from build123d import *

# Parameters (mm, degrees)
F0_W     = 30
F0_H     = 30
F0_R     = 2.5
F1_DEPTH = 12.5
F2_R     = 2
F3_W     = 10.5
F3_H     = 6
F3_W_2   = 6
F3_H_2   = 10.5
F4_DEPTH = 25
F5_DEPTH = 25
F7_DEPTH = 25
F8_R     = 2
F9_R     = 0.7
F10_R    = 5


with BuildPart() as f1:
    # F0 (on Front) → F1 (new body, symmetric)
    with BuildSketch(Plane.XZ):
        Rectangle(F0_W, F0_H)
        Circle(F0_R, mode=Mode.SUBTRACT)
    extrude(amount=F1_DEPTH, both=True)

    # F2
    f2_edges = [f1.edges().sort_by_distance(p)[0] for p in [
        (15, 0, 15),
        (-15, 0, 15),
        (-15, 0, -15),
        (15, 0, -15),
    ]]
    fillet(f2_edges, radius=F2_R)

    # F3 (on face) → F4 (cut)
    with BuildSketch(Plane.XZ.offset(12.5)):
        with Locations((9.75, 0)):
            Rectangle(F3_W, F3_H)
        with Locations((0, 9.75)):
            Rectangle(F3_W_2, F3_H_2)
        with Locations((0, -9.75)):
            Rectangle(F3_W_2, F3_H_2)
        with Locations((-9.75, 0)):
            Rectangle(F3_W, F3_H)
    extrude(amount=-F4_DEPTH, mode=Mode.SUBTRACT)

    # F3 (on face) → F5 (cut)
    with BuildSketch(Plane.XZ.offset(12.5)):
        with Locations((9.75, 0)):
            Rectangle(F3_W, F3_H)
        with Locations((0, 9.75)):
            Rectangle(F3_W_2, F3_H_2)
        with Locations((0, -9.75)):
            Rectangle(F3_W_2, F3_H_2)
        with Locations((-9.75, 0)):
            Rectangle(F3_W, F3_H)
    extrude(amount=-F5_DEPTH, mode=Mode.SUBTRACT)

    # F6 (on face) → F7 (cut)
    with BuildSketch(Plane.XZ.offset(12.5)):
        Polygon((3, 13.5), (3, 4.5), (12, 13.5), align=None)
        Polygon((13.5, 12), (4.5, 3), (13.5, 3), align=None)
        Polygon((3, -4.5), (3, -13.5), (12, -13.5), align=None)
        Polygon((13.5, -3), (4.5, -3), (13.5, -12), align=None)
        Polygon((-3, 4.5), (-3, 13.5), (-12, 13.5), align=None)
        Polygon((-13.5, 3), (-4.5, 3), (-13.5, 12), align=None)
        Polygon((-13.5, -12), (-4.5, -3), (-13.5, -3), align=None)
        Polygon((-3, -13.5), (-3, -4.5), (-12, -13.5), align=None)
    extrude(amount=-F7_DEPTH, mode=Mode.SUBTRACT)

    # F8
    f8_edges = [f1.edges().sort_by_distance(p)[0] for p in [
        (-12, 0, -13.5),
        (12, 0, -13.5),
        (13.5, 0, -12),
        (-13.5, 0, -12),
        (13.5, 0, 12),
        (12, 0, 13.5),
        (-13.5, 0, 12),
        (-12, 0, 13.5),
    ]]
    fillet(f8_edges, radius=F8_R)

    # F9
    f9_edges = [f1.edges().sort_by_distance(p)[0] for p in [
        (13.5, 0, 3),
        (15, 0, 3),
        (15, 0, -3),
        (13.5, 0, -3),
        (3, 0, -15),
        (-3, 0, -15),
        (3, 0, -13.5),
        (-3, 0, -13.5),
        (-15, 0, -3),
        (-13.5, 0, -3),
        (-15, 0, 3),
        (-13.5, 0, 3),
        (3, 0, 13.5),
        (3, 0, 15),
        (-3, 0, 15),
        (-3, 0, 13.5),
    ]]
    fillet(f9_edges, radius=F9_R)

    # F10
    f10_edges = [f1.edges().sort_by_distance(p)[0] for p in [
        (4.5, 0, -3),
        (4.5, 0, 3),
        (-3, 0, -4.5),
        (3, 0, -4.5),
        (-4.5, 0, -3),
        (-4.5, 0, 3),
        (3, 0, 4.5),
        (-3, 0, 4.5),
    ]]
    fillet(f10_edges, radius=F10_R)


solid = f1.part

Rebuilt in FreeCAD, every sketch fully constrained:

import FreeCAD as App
import Part
import Sketcher
from FreeCAD import Vector


def edges_at(feature, points):
    """Names of the edges that pass closest to the given points."""
    edges = feature.Shape.Edges
    near = lambda p: min(range(len(edges)), key=lambda i: edges[i].distToShape(Part.Vertex(*p))[0])
    return sorted({f"Edge{near(p) + 1}" for p in points})

doc = App.newDocument("Part")
body = doc.addObject("PartDesign::Body", "Body")

sketch1 = body.newObject("Sketcher::SketchObject", "Sketch")
sketch1.AttachmentSupport = (doc.getObject("XZ_Plane"), [""])
sketch1.MapMode = "FlatFace"
sketch1.addGeometry([
    Part.LineSegment(Vector(-15, 15, 0), Vector(-15, -15, 0)),
    Part.LineSegment(Vector(-15, -15, 0), Vector(15, -15, 0)),
    Part.LineSegment(Vector(15, -15, 0), Vector(15, 15, 0)),
    Part.LineSegment(Vector(15, 15, 0), Vector(-15, 15, 0)),
    Part.Circle(Vector(0, 0, 0), Vector(0, 0, 1), 2.5),
], False)
sketch1.addConstraint([
    Sketcher.Constraint("Coincident", 0, 2, 1, 1),
    Sketcher.Constraint("Coincident", 1, 2, 2, 1),
    Sketcher.Constraint("Coincident", 2, 2, 3, 1),
    Sketcher.Constraint("Coincident", 3, 2, 0, 1),
    Sketcher.Constraint("Vertical", 0),
    Sketcher.Constraint("Horizontal", 1),
    Sketcher.Constraint("Vertical", 2),
    Sketcher.Constraint("Horizontal", 3),
    Sketcher.Constraint("Coincident", 4, 3, -1, 1),
    Sketcher.Constraint("Symmetric", 0, 2, 2, 2, -1, 1),
    Sketcher.Constraint("Equal", 3, 0),
    Sketcher.Constraint("Diameter", 4, 5.0),
    Sketcher.Constraint("DistanceX", 1, 1, 1, 2, 30.0),
])
pad1 = body.newObject("PartDesign::Pad", "Pad")
pad1.Profile = sketch1
pad1.Length = 25
pad1.Midplane = True
doc.recompute()

fillet = body.newObject("PartDesign::Fillet", "Fillet")
fillet.Base = (pad1, edges_at(pad1, [
    (15, 0, 15),
    (-15, 0, 15),
    (-15, 0, -15),
    (15, 0, -15),
]))
fillet.Radius = 2

sketch2 = body.newObject("Sketcher::SketchObject", "Sketch001")
sketch2.AttachmentSupport = (doc.getObject("XZ_Plane"), [""])
sketch2.MapMode = "FlatFace"
sketch2.AttachmentOffset = App.Placement(Vector(0, 0, 12.5), App.Rotation())
sketch2.addGeometry([
    Part.LineSegment(Vector(4, 3, 0), Vector(4, -3, 0)),
    Part.LineSegment(Vector(4, -3, 0), Vector(15, -3, 0)),
    Part.LineSegment(Vector(15, -3, 0), Vector(15, 3, 0)),
    Part.LineSegment(Vector(15, 3, 0), Vector(4, 3, 0)),
    Part.LineSegment(Vector(-3, 15, 0), Vector(-3, 4, 0)),
    Part.LineSegment(Vector(-3, 4, 0), Vector(3, 4, 0)),
    Part.LineSegment(Vector(3, 4, 0), Vector(3, 15, 0)),
    Part.LineSegment(Vector(3, 15, 0), Vector(-3, 15, 0)),
    Part.LineSegment(Vector(-3, -4, 0), Vector(-3, -15, 0)),
    Part.LineSegment(Vector(-3, -15, 0), Vector(3, -15, 0)),
    Part.LineSegment(Vector(3, -15, 0), Vector(3, -4, 0)),
    Part.LineSegment(Vector(3, -4, 0), Vector(-3, -4, 0)),
    Part.LineSegment(Vector(-15, 3, 0), Vector(-15, -3, 0)),
    Part.LineSegment(Vector(-15, -3, 0), Vector(-4, -3, 0)),
    Part.LineSegment(Vector(-4, -3, 0), Vector(-4, 3, 0)),
    Part.LineSegment(Vector(-4, 3, 0), Vector(-15, 3, 0)),
], False)
sketch2.addConstraint([
    Sketcher.Constraint("Coincident", 0, 2, 1, 1),
    Sketcher.Constraint("Coincident", 1, 2, 2, 1),
    Sketcher.Constraint("Coincident", 2, 2, 3, 1),
    Sketcher.Constraint("Coincident", 3, 2, 0, 1),
    Sketcher.Constraint("Coincident", 4, 2, 5, 1),
    Sketcher.Constraint("Coincident", 5, 2, 6, 1),
    Sketcher.Constraint("Coincident", 6, 2, 7, 1),
    Sketcher.Constraint("Coincident", 7, 2, 4, 1),
    Sketcher.Constraint("Coincident", 8, 2, 9, 1),
    Sketcher.Constraint("Coincident", 9, 2, 10, 1),
    Sketcher.Constraint("Coincident", 10, 2, 11, 1),
    Sketcher.Constraint("Coincident", 11, 2, 8, 1),
    Sketcher.Constraint("Coincident", 12, 2, 13, 1),
    Sketcher.Constraint("Coincident", 13, 2, 14, 1),
    Sketcher.Constraint("Coincident", 14, 2, 15, 1),
    Sketcher.Constraint("Coincident", 15, 2, 12, 1),
    Sketcher.Constraint("Vertical", 0),
    Sketcher.Constraint("Horizontal", 1),
    Sketcher.Constraint("Vertical", 2),
    Sketcher.Constraint("Horizontal", 3),
    Sketcher.Constraint("Vertical", 4),
    Sketcher.Constraint("Horizontal", 5),
    Sketcher.Constraint("Vertical", 6),
    Sketcher.Constraint("Horizontal", 7),
    Sketcher.Constraint("Vertical", 8),
    Sketcher.Constraint("Horizontal", 9),
    Sketcher.Constraint("Vertical", 10),
    Sketcher.Constraint("Horizontal", 11),
    Sketcher.Constraint("Vertical", 12),
    Sketcher.Constraint("Horizontal", 13),
    Sketcher.Constraint("Vertical", 14),
    Sketcher.Constraint("Horizontal", 15),
    Sketcher.Constraint("Symmetric", 6, 2, 8, 2, -1, 1),
    Sketcher.Constraint("Symmetric", 4, 2, 10, 2, -1, 1),
    Sketcher.Constraint("Symmetric", 2, 2, 12, 2, -1, 1),
    Sketcher.Constraint("Symmetric", 0, 2, 14, 2, -1, 1),
    Sketcher.Constraint("Horizontal", 1, 2, 12, 2),
    Sketcher.Constraint("Vertical", 7, 2, 8, 2),
    Sketcher.Constraint("Equal", 11, 0),
    Sketcher.Constraint("Equal", 15, 4),
    Sketcher.Constraint("DistanceX", 5, 1, 5, 2, 6.0),
    Sketcher.Constraint("DistanceX", 1, 1, 1, 2, 10.5),
    Sketcher.Constraint("DistanceX", -1, 1, 1, 2, 15.0),
    Sketcher.Constraint("DistanceY", -1, 1, 6, 2, 15.0),
])
pocket1 = body.newObject("PartDesign::Pocket", "Pocket")
pocket1.Profile = sketch2
pocket1.Length = 25

sketch3 = body.newObject("Sketcher::SketchObject", "Sketch002")
sketch3.AttachmentSupport = (doc.getObject("XZ_Plane"), [""])
sketch3.MapMode = "FlatFace"
sketch3.AttachmentOffset = App.Placement(Vector(0, 0, 12.5), App.Rotation())
sketch3.addGeometry([
    Part.LineSegment(Vector(4, 3, 0), Vector(4, -3, 0)),
    Part.LineSegment(Vector(4, -3, 0), Vector(15, -3, 0)),
    Part.LineSegment(Vector(15, -3, 0), Vector(15, 3, 0)),
    Part.LineSegment(Vector(15, 3, 0), Vector(4, 3, 0)),
    Part.LineSegment(Vector(-3, 15, 0), Vector(-3, 4, 0)),
    Part.LineSegment(Vector(-3, 4, 0), Vector(3, 4, 0)),
    Part.LineSegment(Vector(3, 4, 0), Vector(3, 15, 0)),
    Part.LineSegment(Vector(3, 15, 0), Vector(-3, 15, 0)),
    Part.LineSegment(Vector(-3, -4, 0), Vector(-3, -15, 0)),
    Part.LineSegment(Vector(-3, -15, 0), Vector(3, -15, 0)),
    Part.LineSegment(Vector(3, -15, 0), Vector(3, -4, 0)),
    Part.LineSegment(Vector(3, -4, 0), Vector(-3, -4, 0)),
    Part.LineSegment(Vector(-15, 3, 0), Vector(-15, -3, 0)),
    Part.LineSegment(Vector(-15, -3, 0), Vector(-4, -3, 0)),
    Part.LineSegment(Vector(-4, -3, 0), Vector(-4, 3, 0)),
    Part.LineSegment(Vector(-4, 3, 0), Vector(-15, 3, 0)),
], False)
sketch3.addConstraint([
    Sketcher.Constraint("Coincident", 0, 2, 1, 1),
    Sketcher.Constraint("Coincident", 1, 2, 2, 1),
    Sketcher.Constraint("Coincident", 2, 2, 3, 1),
    Sketcher.Constraint("Coincident", 3, 2, 0, 1),
    Sketcher.Constraint("Coincident", 4, 2, 5, 1),
    Sketcher.Constraint("Coincident", 5, 2, 6, 1),
    Sketcher.Constraint("Coincident", 6, 2, 7, 1),
    Sketcher.Constraint("Coincident", 7, 2, 4, 1),
    Sketcher.Constraint("Coincident", 8, 2, 9, 1),
    Sketcher.Constraint("Coincident", 9, 2, 10, 1),
    Sketcher.Constraint("Coincident", 10, 2, 11, 1),
    Sketcher.Constraint("Coincident", 11, 2, 8, 1),
    Sketcher.Constraint("Coincident", 12, 2, 13, 1),
    Sketcher.Constraint("Coincident", 13, 2, 14, 1),
    Sketcher.Constraint("Coincident", 14, 2, 15, 1),
    Sketcher.Constraint("Coincident", 15, 2, 12, 1),
    Sketcher.Constraint("Vertical", 0),
    Sketcher.Constraint("Horizontal", 1),
    Sketcher.Constraint("Vertical", 2),
    Sketcher.Constraint("Horizontal", 3),
    Sketcher.Constraint("Vertical", 4),
    Sketcher.Constraint("Horizontal", 5),
    Sketcher.Constraint("Vertical", 6),
    Sketcher.Constraint("Horizontal", 7),
    Sketcher.Constraint("Vertical", 8),
    Sketcher.Constraint("Horizontal", 9),
    Sketcher.Constraint("Vertical", 10),
    Sketcher.Constraint("Horizontal", 11),
    Sketcher.Constraint("Vertical", 12),
    Sketcher.Constraint("Horizontal", 13),
    Sketcher.Constraint("Vertical", 14),
    Sketcher.Constraint("Horizontal", 15),
    Sketcher.Constraint("Symmetric", 6, 2, 8, 2, -1, 1),
    Sketcher.Constraint("Symmetric", 4, 2, 10, 2, -1, 1),
    Sketcher.Constraint("Symmetric", 2, 2, 12, 2, -1, 1),
    Sketcher.Constraint("Symmetric", 0, 2, 14, 2, -1, 1),
    Sketcher.Constraint("Horizontal", 1, 2, 12, 2),
    Sketcher.Constraint("Vertical", 7, 2, 8, 2),
    Sketcher.Constraint("Equal", 11, 0),
    Sketcher.Constraint("Equal", 15, 4),
    Sketcher.Constraint("DistanceX", 5, 1, 5, 2, 6.0),
    Sketcher.Constraint("DistanceX", 1, 1, 1, 2, 10.5),
    Sketcher.Constraint("DistanceX", -1, 1, 1, 2, 15.0),
    Sketcher.Constraint("DistanceY", -1, 1, 6, 2, 15.0),
])
pocket2 = body.newObject("PartDesign::Pocket", "Pocket001")
pocket2.Profile = sketch3
pocket2.Length = 25

sketch4 = body.newObject("Sketcher::SketchObject", "Sketch003")
sketch4.AttachmentSupport = (doc.getObject("XZ_Plane"), [""])
sketch4.MapMode = "FlatFace"
sketch4.AttachmentOffset = App.Placement(Vector(0, 0, 12.5), App.Rotation())
sketch4.addGeometry([
    Part.LineSegment(Vector(3, 14, 0), Vector(3, 4, 0)),
    Part.LineSegment(Vector(3, 4, 0), Vector(12, 14, 0)),
    Part.LineSegment(Vector(12, 14, 0), Vector(3, 14, 0)),
    Part.LineSegment(Vector(14, 12, 0), Vector(4, 3, 0)),
    Part.LineSegment(Vector(4, 3, 0), Vector(14, 3, 0)),
    Part.LineSegment(Vector(14, 3, 0), Vector(14, 12, 0)),
    Part.LineSegment(Vector(3, -4, 0), Vector(3, -14, 0)),
    Part.LineSegment(Vector(3, -14, 0), Vector(12, -14, 0)),
    Part.LineSegment(Vector(12, -14, 0), Vector(3, -4, 0)),
    Part.LineSegment(Vector(14, -3, 0), Vector(4, -3, 0)),
    Part.LineSegment(Vector(4, -3, 0), Vector(14, -12, 0)),
    Part.LineSegment(Vector(14, -12, 0), Vector(14, -3, 0)),
    Part.LineSegment(Vector(-3, 4, 0), Vector(-3, 14, 0)),
    Part.LineSegment(Vector(-3, 14, 0), Vector(-12, 14, 0)),
    Part.LineSegment(Vector(-12, 14, 0), Vector(-3, 4, 0)),
    Part.LineSegment(Vector(-14, 3, 0), Vector(-4, 3, 0)),
    Part.LineSegment(Vector(-4, 3, 0), Vector(-14, 12, 0)),
    Part.LineSegment(Vector(-14, 12, 0), Vector(-14, 3, 0)),
    Part.LineSegment(Vector(-14, -12, 0), Vector(-4, -3, 0)),
    Part.LineSegment(Vector(-4, -3, 0), Vector(-14, -3, 0)),
    Part.LineSegment(Vector(-14, -3, 0), Vector(-14, -12, 0)),
    Part.LineSegment(Vector(-3, -14, 0), Vector(-3, -4, 0)),
    Part.LineSegment(Vector(-3, -4, 0), Vector(-12, -14, 0)),
    Part.LineSegment(Vector(-12, -14, 0), Vector(-3, -14, 0)),
], False)
sketch4.addConstraint([
    Sketcher.Constraint("Coincident", 0, 2, 1, 1),
    Sketcher.Constraint("Coincident", 1, 2, 2, 1),
    Sketcher.Constraint("Coincident", 2, 2, 0, 1),
    Sketcher.Constraint("Coincident", 3, 2, 4, 1),
    Sketcher.Constraint("Coincident", 4, 2, 5, 1),
    Sketcher.Constraint("Coincident", 5, 2, 3, 1),
    Sketcher.Constraint("Coincident", 6, 2, 7, 1),
    Sketcher.Constraint("Coincident", 7, 2, 8, 1),
    Sketcher.Constraint("Coincident", 8, 2, 6, 1),
    Sketcher.Constraint("Coincident", 9, 2, 10, 1),
    Sketcher.Constraint("Coincident", 10, 2, 11, 1),
    Sketcher.Constraint("Coincident", 11, 2, 9, 1),
    Sketcher.Constraint("Coincident", 12, 2, 13, 1),
    Sketcher.Constraint("Coincident", 13, 2, 14, 1),
    Sketcher.Constraint("Coincident", 14, 2, 12, 1),
    Sketcher.Constraint("Coincident", 15, 2, 16, 1),
    Sketcher.Constraint("Coincident", 16, 2, 17, 1),
    Sketcher.Constraint("Coincident", 17, 2, 15, 1),
    Sketcher.Constraint("Coincident", 18, 2, 19, 1),
    Sketcher.Constraint("Coincident", 19, 2, 20, 1),
    Sketcher.Constraint("Coincident", 20, 2, 18, 1),
    Sketcher.Constraint("Coincident", 21, 2, 22, 1),
    Sketcher.Constraint("Coincident", 22, 2, 23, 1),
    Sketcher.Constraint("Coincident", 23, 2, 21, 1),
    Sketcher.Constraint("Vertical", 0),
    Sketcher.Constraint("Horizontal", 2),
    Sketcher.Constraint("Horizontal", 4),
    Sketcher.Constraint("Vertical", 5),
    Sketcher.Constraint("Vertical", 6),
    Sketcher.Constraint("Horizontal", 7),
    Sketcher.Constraint("Horizontal", 9),
    Sketcher.Constraint("Vertical", 11),
    Sketcher.Constraint("Vertical", 12),
    Sketcher.Constraint("Horizontal", 13),
    Sketcher.Constraint("Horizontal", 15),
    Sketcher.Constraint("Vertical", 17),
    Sketcher.Constraint("Horizontal", 19),
    Sketcher.Constraint("Vertical", 20),
    Sketcher.Constraint("Vertical", 21),
    Sketcher.Constraint("Horizontal", 23),
    Sketcher.Constraint("Symmetric", 6, 2, 12, 2, -1, 1),
    Sketcher.Constraint("Symmetric", 9, 2, 15, 2, -1, 1),
    Sketcher.Constraint("Symmetric", 10, 2, 16, 2, -1, 1),
    Sketcher.Constraint("Symmetric", 3, 2, 18, 2, -1, 1),
    Sketcher.Constraint("Symmetric", 5, 2, 20, 2, -1, 1),
    Sketcher.Constraint("Symmetric", 0, 2, 21, 2, -1, 1),
    Sketcher.Constraint("Symmetric", 1, 2, 22, 2, -1, 1),
    Sketcher.Constraint("Symmetric", 2, 2, 12, 2, -2),
    Sketcher.Constraint("Symmetric", 3, 2, 15, 2, -2),
    Sketcher.Constraint("Symmetric", 5, 2, 16, 2, -2),
    Sketcher.Constraint("Parallel", 1, 3),
    Sketcher.Constraint("Perpendicular", 3, 8),
    Sketcher.Constraint("Parallel", 8, 10),
    Sketcher.Constraint("Parallel", 10, 14),
    Sketcher.Constraint("Horizontal", 0, 2, 14, 2),
    Sketcher.Constraint("Horizontal", 8, 2, 21, 2),
    Sketcher.Constraint("Equal", 2, 4),
    Sketcher.Constraint("DistanceX", 2, 2, 2, 1, 9.0),
    Sketcher.Constraint("DistanceX", -1, 1, 0, 2, 3.0),
    Sketcher.Constraint("DistanceY", -1, 1, 3, 2, 3.0),
    Sketcher.Constraint("DistanceY", 6, 2, 0, 2, 18.0),
    Sketcher.Constraint("DistanceX", 15, 2, 3, 2, 9.0),
])
pocket3 = body.newObject("PartDesign::Pocket", "Pocket002")
pocket3.Profile = sketch4
pocket3.Length = 25
doc.recompute()

fillet2 = body.newObject("PartDesign::Fillet", "Fillet001")
fillet2.Base = (pocket3, edges_at(pocket3, [
    (-12, 0, -13.5),
    (12, 0, -13.5),
    (13.5, 0, -12),
    (-13.5, 0, -12),
    (13.5, 0, 12),
    (12, 0, 13.5),
    (-13.5, 0, 12),
    (-12, 0, 13.5),
]))
fillet2.Radius = 2
doc.recompute()

fillet3 = body.newObject("PartDesign::Fillet", "Fillet002")
fillet3.Base = (fillet2, edges_at(fillet2, [
    (13.5, 0, 3),
    (15, 0, 3),
    (15, 0, -3),
    (13.5, 0, -3),
    (3, 0, -15),
    (-3, 0, -15),
    (3, 0, -13.5),
    (-3, 0, -13.5),
    (-15, 0, -3),
    (-13.5, 0, -3),
    (-15, 0, 3),
    (-13.5, 0, 3),
    (3, 0, 13.5),
    (3, 0, 15),
    (-3, 0, 15),
    (-3, 0, 13.5),
]))
fillet3.Radius = 0.7
doc.recompute()

fillet4 = body.newObject("PartDesign::Fillet", "Fillet003")
fillet4.Base = (fillet3, edges_at(fillet3, [
    (4.5, 0, -3),
    (4.5, 0, 3),
    (-3, 0, -4.5),
    (3, 0, -4.5),
    (-4.5, 0, -3),
    (-4.5, 0, 3),
    (3, 0, 4.5),
    (-3, 0, 4.5),
]))
fillet4.Radius = 5

doc.recompute()
